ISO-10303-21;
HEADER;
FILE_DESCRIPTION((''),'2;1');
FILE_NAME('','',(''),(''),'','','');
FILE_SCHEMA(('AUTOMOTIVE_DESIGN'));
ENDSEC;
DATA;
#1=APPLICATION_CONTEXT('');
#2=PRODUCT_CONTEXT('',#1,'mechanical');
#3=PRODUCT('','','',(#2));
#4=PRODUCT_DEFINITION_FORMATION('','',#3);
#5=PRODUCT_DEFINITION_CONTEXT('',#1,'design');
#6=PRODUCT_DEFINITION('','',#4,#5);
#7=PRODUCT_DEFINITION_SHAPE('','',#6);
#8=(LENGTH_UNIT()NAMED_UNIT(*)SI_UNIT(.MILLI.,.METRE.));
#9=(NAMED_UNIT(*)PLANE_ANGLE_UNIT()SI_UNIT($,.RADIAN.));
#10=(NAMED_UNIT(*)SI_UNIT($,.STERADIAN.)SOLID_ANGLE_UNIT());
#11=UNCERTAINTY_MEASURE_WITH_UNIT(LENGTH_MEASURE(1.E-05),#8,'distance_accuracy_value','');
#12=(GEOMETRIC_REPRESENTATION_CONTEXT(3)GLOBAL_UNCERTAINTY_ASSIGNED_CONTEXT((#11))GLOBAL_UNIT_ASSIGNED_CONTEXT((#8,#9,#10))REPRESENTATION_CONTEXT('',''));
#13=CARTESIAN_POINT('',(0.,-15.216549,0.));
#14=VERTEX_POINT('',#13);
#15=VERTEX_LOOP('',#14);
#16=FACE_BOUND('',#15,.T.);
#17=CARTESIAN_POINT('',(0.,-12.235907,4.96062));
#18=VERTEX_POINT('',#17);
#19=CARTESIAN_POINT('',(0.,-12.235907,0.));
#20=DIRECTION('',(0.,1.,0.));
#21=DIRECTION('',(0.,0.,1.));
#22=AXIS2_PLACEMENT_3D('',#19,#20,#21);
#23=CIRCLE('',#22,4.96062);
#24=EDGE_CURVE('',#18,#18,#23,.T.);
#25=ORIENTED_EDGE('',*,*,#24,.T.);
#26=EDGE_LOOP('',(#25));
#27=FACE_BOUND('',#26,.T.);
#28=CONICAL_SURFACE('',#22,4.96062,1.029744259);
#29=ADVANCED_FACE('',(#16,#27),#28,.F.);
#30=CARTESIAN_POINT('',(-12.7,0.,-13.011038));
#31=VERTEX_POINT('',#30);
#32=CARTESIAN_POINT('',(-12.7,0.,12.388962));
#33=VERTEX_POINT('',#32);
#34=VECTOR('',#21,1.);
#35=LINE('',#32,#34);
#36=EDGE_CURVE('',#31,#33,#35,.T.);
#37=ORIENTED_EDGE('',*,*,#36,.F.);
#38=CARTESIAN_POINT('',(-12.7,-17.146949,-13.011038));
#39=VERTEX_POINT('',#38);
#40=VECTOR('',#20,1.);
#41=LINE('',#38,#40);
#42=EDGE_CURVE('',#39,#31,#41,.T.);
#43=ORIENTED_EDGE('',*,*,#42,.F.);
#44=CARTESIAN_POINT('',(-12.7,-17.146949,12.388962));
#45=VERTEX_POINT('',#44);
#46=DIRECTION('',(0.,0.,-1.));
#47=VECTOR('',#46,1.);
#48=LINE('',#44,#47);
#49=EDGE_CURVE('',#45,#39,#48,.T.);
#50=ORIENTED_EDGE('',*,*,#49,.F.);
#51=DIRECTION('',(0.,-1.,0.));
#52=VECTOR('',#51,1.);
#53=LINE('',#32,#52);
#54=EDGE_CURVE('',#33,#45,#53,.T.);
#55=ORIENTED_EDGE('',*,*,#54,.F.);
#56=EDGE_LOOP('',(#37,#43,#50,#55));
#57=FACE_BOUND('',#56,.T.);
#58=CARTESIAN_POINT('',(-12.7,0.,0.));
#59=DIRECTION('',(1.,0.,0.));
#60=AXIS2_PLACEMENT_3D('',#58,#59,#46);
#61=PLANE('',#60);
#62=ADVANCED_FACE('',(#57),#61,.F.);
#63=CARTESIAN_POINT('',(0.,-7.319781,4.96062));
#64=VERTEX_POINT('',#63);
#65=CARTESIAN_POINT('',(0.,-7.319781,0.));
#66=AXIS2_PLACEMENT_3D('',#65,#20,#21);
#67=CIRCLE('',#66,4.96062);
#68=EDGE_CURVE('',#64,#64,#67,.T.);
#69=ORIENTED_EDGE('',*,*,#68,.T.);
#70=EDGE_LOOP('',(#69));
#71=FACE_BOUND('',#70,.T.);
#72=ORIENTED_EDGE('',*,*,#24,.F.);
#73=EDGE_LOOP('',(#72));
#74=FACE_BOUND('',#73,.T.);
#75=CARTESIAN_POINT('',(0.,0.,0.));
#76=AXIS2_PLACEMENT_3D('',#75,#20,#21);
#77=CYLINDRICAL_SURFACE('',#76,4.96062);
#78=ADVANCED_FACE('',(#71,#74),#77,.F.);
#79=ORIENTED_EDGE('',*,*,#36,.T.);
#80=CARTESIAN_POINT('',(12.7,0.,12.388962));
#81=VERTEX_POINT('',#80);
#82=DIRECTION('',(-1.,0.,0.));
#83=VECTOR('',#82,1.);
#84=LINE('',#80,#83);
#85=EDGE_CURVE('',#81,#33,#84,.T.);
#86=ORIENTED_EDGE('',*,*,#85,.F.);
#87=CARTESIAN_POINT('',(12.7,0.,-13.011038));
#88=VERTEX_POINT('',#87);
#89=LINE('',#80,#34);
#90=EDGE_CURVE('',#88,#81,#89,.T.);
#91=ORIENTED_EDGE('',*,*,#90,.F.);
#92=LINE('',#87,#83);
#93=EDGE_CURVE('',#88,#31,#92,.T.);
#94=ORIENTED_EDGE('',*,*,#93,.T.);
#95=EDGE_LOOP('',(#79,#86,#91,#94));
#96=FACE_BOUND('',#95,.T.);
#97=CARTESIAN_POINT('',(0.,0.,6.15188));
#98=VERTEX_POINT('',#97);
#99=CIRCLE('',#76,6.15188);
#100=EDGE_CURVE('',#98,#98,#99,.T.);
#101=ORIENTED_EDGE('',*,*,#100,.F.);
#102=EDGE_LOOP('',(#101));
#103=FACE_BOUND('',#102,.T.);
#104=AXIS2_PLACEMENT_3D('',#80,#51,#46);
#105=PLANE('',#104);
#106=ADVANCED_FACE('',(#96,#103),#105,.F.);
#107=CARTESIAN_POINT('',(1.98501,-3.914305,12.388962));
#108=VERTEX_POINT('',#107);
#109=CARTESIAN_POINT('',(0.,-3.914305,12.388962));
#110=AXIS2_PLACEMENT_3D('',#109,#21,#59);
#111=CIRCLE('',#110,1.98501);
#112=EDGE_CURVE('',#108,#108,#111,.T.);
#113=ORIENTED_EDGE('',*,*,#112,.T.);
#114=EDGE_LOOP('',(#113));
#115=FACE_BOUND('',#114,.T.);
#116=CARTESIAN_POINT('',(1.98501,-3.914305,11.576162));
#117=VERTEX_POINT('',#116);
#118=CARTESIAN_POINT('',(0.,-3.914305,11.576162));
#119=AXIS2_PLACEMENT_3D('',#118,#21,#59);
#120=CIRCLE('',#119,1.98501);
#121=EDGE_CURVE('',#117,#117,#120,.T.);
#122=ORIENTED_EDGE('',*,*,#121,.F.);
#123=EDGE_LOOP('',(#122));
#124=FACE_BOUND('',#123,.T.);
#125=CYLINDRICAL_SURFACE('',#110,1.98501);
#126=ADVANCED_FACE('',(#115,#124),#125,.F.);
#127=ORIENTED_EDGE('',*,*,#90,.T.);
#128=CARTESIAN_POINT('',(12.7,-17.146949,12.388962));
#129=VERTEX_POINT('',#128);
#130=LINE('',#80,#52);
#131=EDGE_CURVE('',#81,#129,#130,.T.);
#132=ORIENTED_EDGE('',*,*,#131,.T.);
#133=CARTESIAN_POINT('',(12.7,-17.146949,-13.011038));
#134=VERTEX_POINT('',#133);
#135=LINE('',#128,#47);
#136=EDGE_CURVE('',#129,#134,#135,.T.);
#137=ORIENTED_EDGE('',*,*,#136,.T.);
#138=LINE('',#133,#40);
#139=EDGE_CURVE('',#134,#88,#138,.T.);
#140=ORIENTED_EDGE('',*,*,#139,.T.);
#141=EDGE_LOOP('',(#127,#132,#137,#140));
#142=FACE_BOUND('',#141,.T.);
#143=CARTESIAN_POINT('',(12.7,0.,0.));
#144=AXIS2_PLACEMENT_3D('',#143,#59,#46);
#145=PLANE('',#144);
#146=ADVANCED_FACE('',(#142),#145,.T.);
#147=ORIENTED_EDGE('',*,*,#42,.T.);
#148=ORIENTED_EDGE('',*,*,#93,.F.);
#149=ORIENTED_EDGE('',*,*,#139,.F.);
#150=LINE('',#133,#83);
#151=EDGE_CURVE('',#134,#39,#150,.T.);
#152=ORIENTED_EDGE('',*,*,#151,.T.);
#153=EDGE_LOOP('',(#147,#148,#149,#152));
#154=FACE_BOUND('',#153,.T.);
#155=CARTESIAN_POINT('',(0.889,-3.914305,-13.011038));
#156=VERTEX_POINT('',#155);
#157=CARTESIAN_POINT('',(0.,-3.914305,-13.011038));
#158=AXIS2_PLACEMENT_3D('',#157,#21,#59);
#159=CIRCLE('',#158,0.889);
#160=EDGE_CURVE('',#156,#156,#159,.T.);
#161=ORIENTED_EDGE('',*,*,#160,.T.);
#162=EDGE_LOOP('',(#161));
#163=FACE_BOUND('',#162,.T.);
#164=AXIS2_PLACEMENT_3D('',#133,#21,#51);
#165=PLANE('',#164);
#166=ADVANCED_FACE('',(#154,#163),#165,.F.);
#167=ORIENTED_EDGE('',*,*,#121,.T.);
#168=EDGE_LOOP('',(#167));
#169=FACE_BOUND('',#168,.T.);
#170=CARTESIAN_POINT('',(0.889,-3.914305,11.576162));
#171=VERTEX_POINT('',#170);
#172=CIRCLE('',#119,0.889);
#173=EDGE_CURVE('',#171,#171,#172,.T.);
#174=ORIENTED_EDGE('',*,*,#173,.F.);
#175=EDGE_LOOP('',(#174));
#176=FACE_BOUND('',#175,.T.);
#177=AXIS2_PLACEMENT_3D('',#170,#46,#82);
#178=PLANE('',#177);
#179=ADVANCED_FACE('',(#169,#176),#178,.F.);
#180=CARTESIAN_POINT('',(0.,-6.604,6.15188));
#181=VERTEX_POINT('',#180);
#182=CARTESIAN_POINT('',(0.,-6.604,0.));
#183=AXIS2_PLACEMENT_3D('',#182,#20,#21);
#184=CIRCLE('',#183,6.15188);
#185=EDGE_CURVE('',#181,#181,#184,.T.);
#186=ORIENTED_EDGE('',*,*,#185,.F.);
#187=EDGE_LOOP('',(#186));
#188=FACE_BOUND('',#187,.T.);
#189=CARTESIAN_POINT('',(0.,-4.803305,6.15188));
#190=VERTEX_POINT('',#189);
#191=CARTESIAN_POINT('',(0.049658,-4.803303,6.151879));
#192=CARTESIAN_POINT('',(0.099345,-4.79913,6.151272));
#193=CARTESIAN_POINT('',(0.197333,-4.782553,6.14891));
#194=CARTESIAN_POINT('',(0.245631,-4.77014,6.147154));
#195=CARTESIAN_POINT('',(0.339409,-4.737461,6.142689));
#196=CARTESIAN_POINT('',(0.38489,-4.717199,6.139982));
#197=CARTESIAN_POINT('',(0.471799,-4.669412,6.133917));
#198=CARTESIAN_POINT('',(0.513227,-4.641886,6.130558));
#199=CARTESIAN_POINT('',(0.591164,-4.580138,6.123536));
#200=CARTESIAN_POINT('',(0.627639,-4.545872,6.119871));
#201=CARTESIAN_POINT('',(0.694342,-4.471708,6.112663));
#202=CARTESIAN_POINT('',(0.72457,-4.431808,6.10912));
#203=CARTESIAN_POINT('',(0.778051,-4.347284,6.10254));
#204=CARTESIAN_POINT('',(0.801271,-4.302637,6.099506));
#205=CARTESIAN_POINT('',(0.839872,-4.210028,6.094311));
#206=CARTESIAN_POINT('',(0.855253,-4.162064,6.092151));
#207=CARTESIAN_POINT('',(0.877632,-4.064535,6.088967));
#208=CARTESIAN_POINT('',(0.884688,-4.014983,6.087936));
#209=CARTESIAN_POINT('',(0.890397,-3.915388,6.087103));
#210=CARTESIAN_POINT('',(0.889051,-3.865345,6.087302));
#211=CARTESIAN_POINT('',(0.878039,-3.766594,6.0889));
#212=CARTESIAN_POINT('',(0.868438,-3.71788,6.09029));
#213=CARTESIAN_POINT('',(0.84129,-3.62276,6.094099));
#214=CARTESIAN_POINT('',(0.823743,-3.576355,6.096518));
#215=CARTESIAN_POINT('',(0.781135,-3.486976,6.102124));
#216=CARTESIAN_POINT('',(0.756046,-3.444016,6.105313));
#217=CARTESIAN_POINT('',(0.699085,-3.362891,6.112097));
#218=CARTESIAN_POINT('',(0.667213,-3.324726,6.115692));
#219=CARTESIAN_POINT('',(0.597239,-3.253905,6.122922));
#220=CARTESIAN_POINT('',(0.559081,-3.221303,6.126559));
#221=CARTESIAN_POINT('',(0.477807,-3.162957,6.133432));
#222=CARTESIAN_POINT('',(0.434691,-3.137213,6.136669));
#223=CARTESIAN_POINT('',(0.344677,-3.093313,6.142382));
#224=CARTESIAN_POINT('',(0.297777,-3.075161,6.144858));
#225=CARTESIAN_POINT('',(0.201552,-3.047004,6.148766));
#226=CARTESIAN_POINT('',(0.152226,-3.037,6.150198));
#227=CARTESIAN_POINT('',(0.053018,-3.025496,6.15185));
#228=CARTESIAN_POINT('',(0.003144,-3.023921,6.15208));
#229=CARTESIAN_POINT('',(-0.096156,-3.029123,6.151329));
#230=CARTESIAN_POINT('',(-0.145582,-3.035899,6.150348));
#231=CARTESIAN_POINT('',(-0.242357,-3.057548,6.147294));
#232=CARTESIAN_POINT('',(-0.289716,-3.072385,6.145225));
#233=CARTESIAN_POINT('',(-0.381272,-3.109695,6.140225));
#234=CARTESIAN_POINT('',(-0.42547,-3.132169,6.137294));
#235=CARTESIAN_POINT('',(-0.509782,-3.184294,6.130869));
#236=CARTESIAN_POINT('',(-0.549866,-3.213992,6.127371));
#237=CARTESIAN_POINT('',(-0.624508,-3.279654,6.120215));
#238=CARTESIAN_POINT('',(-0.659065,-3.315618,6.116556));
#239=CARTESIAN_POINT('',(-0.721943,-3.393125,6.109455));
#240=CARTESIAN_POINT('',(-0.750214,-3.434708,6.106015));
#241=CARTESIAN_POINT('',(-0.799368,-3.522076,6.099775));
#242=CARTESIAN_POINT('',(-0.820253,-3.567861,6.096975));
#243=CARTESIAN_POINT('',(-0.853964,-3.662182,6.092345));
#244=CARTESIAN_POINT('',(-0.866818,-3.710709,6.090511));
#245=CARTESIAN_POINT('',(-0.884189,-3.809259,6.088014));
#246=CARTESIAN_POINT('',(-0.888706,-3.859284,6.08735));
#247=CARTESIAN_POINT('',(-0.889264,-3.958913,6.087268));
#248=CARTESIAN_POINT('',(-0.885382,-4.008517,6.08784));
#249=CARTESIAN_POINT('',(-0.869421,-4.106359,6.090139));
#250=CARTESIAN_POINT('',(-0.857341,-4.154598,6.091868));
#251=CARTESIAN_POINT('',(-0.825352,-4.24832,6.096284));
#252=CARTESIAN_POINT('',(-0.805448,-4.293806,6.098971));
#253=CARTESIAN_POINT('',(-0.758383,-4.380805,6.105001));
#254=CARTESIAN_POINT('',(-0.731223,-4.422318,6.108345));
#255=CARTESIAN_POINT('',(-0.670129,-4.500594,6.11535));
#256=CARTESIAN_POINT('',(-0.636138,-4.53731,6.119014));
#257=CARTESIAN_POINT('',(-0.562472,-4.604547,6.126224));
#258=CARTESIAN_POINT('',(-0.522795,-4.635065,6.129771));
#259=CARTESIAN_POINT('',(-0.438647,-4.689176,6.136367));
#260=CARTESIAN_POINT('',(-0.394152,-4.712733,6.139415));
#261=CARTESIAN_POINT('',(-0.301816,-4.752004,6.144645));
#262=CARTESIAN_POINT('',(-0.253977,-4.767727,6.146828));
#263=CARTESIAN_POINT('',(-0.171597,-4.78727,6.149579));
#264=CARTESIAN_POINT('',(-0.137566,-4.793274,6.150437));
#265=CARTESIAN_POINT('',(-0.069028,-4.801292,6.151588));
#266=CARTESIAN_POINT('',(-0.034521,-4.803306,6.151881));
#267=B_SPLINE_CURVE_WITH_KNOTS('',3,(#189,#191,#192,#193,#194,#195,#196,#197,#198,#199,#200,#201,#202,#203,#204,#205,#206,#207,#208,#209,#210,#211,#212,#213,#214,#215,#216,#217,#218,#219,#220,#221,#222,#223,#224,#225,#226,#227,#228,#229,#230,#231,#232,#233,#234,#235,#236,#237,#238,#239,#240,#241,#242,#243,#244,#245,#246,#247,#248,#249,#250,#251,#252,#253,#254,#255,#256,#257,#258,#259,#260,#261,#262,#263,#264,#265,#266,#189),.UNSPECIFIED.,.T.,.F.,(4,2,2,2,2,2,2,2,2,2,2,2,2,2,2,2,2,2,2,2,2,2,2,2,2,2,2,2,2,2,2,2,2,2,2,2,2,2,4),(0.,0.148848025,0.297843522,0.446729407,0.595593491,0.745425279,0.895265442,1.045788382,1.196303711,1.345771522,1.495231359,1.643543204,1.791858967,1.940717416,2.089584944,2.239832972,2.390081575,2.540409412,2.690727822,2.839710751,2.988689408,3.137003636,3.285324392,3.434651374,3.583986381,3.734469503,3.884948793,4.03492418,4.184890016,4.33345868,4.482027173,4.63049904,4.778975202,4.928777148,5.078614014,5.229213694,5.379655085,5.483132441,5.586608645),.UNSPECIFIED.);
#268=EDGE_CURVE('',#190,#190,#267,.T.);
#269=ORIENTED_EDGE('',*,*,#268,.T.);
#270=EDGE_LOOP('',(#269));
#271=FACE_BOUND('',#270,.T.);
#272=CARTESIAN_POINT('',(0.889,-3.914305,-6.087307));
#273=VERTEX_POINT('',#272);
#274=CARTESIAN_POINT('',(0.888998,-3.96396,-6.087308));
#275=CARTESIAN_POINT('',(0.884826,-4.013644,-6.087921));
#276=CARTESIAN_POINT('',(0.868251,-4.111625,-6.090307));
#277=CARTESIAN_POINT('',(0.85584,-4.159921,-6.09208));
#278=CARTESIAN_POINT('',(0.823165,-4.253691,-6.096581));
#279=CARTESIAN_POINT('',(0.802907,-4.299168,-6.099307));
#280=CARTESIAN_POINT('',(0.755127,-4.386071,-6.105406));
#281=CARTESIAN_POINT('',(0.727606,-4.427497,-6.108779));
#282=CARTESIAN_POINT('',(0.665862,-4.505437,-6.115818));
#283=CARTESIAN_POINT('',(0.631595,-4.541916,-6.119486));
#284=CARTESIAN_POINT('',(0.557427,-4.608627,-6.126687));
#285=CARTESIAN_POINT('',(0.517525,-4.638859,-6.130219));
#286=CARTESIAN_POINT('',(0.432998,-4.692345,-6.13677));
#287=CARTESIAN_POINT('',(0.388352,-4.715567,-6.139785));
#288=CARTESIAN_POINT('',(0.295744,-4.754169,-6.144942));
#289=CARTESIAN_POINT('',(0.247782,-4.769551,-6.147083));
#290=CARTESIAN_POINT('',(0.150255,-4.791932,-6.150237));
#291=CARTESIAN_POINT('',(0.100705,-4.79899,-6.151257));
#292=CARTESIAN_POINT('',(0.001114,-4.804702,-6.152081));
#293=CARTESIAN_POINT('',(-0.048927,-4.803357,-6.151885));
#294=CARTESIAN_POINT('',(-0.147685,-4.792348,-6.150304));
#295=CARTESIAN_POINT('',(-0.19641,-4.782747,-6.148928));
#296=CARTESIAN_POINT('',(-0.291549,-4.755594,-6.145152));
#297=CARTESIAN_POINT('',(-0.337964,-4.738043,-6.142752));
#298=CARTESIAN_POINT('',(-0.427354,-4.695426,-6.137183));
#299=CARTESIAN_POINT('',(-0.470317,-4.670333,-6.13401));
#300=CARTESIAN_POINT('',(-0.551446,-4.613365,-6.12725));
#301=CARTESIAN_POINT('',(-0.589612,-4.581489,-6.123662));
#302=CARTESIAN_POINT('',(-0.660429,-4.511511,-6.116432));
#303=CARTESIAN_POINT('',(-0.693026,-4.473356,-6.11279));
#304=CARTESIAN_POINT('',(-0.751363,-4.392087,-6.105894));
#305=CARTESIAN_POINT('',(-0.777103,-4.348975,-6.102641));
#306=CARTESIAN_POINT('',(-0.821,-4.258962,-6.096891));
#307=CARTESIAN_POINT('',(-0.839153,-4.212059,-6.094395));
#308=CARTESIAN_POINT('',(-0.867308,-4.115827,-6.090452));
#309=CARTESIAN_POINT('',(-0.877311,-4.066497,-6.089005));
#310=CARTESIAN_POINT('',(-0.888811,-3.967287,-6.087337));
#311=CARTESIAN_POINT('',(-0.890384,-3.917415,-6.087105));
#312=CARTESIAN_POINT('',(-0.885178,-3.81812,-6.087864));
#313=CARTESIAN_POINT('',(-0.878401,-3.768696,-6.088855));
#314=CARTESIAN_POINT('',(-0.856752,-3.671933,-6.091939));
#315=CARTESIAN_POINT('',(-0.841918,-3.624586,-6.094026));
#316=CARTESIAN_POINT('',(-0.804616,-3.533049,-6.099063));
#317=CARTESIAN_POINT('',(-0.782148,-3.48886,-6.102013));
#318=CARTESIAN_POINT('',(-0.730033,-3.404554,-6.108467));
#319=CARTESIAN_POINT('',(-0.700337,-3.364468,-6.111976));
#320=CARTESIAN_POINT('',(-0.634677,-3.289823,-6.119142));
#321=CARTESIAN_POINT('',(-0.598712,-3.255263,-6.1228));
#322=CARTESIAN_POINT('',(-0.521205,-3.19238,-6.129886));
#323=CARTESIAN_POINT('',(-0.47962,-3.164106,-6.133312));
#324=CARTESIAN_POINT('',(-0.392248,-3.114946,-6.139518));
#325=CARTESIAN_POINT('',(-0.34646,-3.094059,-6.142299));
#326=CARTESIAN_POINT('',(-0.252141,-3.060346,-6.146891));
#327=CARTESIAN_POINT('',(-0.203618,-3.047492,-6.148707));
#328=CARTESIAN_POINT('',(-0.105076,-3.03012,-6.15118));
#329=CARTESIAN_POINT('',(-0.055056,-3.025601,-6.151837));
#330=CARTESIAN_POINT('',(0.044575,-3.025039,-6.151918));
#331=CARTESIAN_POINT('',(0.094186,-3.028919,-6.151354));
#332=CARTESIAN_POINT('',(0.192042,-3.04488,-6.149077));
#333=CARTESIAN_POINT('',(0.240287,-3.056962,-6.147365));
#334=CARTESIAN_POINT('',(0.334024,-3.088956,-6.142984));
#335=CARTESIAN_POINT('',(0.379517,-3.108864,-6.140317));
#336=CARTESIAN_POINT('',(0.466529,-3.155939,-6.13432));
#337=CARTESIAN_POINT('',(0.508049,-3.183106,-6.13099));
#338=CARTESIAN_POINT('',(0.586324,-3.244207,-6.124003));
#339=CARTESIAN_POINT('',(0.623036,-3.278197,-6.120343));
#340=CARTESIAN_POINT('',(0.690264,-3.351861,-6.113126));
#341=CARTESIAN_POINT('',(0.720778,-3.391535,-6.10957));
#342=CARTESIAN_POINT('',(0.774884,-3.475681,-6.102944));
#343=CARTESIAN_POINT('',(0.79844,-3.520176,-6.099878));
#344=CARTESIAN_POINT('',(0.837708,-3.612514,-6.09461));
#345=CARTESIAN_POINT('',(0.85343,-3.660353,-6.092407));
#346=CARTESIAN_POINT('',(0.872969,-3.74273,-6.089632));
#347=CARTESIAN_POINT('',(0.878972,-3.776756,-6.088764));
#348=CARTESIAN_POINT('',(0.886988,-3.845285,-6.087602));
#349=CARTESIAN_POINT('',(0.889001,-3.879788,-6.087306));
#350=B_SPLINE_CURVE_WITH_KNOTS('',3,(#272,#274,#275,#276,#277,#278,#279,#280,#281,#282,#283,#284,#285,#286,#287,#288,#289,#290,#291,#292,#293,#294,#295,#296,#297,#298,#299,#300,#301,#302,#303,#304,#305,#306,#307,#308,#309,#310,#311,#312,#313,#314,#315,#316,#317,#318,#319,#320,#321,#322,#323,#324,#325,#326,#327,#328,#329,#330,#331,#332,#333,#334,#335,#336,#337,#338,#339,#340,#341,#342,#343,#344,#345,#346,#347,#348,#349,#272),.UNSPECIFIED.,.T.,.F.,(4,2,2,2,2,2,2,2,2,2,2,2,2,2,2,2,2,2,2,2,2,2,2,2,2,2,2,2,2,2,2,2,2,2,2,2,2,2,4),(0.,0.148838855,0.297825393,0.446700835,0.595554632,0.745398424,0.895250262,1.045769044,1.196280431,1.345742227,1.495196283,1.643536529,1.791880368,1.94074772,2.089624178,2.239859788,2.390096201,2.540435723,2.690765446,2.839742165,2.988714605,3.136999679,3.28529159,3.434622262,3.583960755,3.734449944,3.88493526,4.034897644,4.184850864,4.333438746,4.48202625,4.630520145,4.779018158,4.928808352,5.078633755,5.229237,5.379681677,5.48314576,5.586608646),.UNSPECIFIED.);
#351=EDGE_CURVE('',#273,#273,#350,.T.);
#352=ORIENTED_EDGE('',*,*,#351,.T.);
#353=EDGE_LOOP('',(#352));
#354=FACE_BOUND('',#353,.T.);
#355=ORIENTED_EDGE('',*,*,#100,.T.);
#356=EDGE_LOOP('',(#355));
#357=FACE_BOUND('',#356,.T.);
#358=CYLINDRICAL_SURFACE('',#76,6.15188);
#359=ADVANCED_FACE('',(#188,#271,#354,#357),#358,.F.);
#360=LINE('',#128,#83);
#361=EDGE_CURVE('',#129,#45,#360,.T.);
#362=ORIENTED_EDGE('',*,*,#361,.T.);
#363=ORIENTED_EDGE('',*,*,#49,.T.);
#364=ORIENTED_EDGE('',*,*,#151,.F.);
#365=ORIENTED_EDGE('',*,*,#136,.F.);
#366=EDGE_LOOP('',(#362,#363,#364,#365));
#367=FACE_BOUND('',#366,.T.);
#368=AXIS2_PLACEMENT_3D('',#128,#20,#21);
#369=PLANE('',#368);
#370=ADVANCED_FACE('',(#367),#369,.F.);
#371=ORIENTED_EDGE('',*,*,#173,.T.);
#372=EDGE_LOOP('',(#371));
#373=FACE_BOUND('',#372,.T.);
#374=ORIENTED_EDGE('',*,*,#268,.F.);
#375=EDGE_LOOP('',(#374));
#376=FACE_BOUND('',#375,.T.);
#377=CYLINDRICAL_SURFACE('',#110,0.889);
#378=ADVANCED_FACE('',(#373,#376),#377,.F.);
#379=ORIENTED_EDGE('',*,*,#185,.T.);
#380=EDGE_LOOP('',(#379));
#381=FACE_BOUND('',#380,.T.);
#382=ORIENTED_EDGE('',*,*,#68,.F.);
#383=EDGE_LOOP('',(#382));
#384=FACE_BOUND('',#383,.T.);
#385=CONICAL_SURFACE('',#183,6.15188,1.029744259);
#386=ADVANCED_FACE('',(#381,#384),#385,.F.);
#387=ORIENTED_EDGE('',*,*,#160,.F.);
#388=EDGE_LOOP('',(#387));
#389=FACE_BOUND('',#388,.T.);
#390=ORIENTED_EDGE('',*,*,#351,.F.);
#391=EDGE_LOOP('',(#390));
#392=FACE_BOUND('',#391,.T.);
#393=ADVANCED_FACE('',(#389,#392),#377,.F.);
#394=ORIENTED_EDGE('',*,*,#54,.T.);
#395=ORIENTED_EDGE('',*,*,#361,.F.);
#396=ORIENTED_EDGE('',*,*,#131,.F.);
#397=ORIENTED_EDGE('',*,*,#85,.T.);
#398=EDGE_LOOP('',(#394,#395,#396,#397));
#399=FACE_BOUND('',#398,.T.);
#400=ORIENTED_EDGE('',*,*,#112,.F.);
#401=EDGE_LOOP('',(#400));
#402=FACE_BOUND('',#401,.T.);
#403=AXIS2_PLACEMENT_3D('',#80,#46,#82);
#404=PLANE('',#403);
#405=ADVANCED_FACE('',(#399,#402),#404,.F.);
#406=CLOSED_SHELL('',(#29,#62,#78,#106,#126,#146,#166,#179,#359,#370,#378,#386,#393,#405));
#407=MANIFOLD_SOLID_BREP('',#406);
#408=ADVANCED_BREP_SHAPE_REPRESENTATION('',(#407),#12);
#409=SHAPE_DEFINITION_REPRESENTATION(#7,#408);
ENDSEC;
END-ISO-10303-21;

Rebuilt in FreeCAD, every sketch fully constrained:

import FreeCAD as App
import Part
import Sketcher
Q = App.Units.Quantity


def add_polygon(sketch, points):
    """Adds a closed chain of lines whose ends are joined by coincident constraints."""
    first, n = sketch.GeometryCount, len(points)
    for a, b in zip(points, points[1:] + points[:1]):
        sketch.addGeometry(Part.LineSegment(App.Vector(*a, 0), App.Vector(*b, 0)), False)
    for i in range(n):
        sketch.addConstraint(Sketcher.Constraint("Coincident", first + i, 2, first + (i + 1) % n, 1))

doc = App.newDocument("Part")
body = doc.addObject("PartDesign::Body", "Body")

sketch1 = body.newObject("Sketcher::SketchObject", "Sketch")
sketch1.AttachmentSupport = (doc.getObject("YZ_Plane"), [""])
sketch1.MapMode = "FlatFace"
add_polygon(sketch1, [(0, 12.388962), (-17.146949, 12.388962), (-17.146949, -13.011038), (0, -13.011038)])
sketch1.addConstraint([
    Sketcher.Constraint("Horizontal", 0),
    Sketcher.Constraint("Vertical", 1),
    Sketcher.Constraint("Horizontal", 2),
    Sketcher.Constraint("Vertical", 3),
    Sketcher.Constraint("PointOnObject", 2, 2, -2),
    Sketcher.Constraint("DistanceY", 1, 2, 1, 1, Q("1 in")),
    Sketcher.Constraint("DistanceX", 0, 2, 0, 1, Q("17.146949 mm")),
    Sketcher.Constraint("DistanceY", -1, 1, 0, 2, Q("12.388962 mm")),
])
pad1 = body.newObject("PartDesign::Pad", "Pad")
pad1.Profile = sketch1
pad1.Length = Q("1 in")
pad1.Midplane = True

sketch2 = body.newObject("Sketcher::SketchObject", "Sketch001")
sketch2.AttachmentSupport = (doc.getObject("XZ_Plane"), [""])
sketch2.MapMode = "FlatFace"
sketch2.addGeometry(Part.Circle(App.Vector(0, 0, 0), App.Vector(0, 0, 1), 4.96062), False)
sketch2.addConstraint([
    Sketcher.Constraint("Coincident", 0, 3, -1, 1),
    Sketcher.Constraint("Diameter", 0, Q("0.3906 in")),
])
doc.recompute()
hole = body.newObject("PartDesign::Hole", "Hole")
hole.Profile = sketch2
hole.ThreadType = "None"
hole.Diameter = Q("0.3906 in")
hole.DepthType = "Dimension"
hole.Depth = 12.235907
hole.DrillPoint = "Angled"
hole.DrillPointAngle = 118
hole.Reversed = True

sketch3 = body.newObject("Sketcher::SketchObject", "Sketch002")
sketch3.AttachmentSupport = (doc.getObject("XZ_Plane"), [""])
sketch3.MapMode = "FlatFace"
sketch3.addGeometry(Part.Circle(App.Vector(0, 0, 0), App.Vector(0, 0, 1), 6.15188), False)
sketch3.addConstraint([
    Sketcher.Constraint("Coincident", 0, 3, -1, 1),
    Sketcher.Constraint("Diameter", 0, Q("0.4844 in")),
])
doc.recompute()
hole2 = body.newObject("PartDesign::Hole", "Hole001")
hole2.Profile = sketch3
hole2.ThreadType = "None"
hole2.Diameter = Q("0.4844 in")
hole2.DepthType = "Dimension"
hole2.Depth = Q("0.26 in")
hole2.DrillPoint = "Angled"
hole2.DrillPointAngle = 118
hole2.Reversed = True

sketch4 = body.newObject("Sketcher::SketchObject", "Sketch003")
sketch4.AttachmentSupport = (doc.getObject("XY_Plane"), [""])
sketch4.MapMode = "FlatFace"
sketch4.AttachmentOffset = App.Placement(App.Vector(0, 0, 12.388962), App.Rotation())
sketch4.addGeometry(Part.Circle(App.Vector(0, -3.914305, 0), App.Vector(0, 0, 1), 0.889), False)
sketch4.addConstraint([
    Sketcher.Constraint("PointOnObject", 0, 3, -2),
    Sketcher.Constraint("Diameter", 0, Q("0.07 in")),
    Sketcher.Constraint("DistanceY", 0, 3, -1, 1, Q("3.914305 mm")),
])
doc.recompute()
hole3 = body.newObject("PartDesign::Hole", "Hole002")
hole3.Profile = sketch4
hole3.ThreadType = "None"
hole3.Diameter = Q("0.07 in")
hole3.DepthType = "ThroughAll"
hole3.HoleCutType = "Counterbore"
hole3.HoleCutDiameter = Q("0.1563 in")
hole3.HoleCutDepth = Q("0.032 in")

doc.recompute()
